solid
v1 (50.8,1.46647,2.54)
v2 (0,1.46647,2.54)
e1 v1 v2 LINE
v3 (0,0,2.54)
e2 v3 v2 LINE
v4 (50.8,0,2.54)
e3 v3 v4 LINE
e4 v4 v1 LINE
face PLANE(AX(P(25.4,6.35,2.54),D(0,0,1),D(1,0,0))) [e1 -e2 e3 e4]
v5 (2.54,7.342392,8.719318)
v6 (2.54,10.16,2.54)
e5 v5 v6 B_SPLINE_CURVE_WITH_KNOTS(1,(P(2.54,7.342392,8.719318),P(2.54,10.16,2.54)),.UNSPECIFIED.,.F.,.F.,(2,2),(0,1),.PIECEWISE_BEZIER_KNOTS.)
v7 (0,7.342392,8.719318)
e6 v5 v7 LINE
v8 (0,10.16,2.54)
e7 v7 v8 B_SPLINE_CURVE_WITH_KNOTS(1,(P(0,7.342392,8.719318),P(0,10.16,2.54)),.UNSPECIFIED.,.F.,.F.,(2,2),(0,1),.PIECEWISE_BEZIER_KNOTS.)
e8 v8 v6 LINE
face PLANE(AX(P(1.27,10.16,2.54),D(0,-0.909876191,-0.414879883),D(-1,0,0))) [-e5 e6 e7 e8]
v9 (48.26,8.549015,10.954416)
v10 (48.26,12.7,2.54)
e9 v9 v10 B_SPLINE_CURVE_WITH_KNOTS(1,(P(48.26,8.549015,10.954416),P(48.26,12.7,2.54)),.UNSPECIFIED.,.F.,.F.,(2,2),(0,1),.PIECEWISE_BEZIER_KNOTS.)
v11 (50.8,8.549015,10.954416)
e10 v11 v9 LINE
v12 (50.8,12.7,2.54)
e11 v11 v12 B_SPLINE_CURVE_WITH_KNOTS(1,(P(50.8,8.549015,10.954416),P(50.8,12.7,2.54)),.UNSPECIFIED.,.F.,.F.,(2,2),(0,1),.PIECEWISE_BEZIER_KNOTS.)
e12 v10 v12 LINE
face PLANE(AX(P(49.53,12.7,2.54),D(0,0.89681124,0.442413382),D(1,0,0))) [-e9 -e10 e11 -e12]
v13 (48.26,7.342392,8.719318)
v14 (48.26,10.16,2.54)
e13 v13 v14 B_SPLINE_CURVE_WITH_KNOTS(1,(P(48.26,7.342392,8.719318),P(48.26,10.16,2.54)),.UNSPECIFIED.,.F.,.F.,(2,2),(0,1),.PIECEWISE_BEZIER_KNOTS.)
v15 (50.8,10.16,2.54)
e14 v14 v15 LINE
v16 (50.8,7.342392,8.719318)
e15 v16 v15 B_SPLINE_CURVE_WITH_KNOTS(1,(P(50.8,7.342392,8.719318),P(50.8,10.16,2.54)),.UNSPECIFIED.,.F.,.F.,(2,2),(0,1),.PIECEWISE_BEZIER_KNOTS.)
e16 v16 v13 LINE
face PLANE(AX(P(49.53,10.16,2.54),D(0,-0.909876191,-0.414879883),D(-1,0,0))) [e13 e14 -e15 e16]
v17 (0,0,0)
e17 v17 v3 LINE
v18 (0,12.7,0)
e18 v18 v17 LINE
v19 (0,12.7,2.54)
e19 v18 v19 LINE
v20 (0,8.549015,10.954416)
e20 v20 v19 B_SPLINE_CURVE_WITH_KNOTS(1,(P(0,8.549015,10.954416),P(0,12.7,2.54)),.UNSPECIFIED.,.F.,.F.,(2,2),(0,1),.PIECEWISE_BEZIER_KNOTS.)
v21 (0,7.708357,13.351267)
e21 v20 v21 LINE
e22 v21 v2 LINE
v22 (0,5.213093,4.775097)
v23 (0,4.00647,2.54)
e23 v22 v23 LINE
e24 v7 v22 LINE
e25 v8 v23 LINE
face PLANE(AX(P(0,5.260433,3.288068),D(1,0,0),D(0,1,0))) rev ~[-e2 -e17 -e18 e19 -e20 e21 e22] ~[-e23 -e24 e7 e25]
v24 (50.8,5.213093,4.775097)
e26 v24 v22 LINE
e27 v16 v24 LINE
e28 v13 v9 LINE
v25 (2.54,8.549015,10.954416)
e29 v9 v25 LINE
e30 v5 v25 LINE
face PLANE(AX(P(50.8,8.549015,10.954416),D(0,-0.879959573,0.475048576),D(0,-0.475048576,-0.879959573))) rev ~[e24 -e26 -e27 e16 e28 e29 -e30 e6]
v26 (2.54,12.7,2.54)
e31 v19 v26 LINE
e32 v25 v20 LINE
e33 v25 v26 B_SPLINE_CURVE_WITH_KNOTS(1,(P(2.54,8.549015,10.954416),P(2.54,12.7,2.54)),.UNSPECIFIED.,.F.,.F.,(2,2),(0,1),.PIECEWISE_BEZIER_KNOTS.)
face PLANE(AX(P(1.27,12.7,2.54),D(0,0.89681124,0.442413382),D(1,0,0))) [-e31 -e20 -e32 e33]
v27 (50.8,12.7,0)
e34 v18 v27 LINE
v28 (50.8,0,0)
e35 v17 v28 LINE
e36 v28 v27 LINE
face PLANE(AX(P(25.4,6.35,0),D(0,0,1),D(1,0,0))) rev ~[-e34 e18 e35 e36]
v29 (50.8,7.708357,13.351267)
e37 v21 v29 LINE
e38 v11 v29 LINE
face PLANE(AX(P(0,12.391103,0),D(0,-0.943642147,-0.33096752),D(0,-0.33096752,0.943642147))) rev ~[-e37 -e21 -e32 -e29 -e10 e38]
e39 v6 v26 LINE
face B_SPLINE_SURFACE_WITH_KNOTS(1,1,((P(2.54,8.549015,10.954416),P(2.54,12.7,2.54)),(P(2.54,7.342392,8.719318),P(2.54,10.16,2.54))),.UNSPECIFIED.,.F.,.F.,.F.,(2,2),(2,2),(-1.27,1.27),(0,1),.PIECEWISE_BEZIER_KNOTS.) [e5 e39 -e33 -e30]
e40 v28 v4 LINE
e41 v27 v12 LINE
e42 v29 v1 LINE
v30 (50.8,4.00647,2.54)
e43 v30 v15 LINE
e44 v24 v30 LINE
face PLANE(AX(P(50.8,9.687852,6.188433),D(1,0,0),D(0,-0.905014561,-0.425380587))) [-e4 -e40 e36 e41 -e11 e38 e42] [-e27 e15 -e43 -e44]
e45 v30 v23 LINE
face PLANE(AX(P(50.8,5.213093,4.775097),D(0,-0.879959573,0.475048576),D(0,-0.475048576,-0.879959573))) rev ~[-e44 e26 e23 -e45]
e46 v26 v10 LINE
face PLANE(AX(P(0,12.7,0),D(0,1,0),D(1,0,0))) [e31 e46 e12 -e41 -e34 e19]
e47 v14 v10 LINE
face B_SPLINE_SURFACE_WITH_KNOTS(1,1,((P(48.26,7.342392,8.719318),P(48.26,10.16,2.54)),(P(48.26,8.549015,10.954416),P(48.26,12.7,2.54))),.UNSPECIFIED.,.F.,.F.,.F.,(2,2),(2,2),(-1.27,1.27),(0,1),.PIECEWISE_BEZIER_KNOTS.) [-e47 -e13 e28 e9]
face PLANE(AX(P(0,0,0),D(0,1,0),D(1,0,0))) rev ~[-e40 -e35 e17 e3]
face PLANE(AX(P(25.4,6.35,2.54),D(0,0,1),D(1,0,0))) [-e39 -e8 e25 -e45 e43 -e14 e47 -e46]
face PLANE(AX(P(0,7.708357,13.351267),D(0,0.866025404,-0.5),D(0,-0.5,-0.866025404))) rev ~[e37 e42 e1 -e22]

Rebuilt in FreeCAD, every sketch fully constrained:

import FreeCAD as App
import Part
import Sketcher
from FreeCAD import Vector
Q = App.Units.Quantity


def add_polygon(sketch, points):
    """Adds a closed chain of lines whose ends are joined by coincident constraints."""
    first, n = sketch.GeometryCount, len(points)
    for a, b in zip(points, points[1:] + points[:1]):
        sketch.addGeometry(Part.LineSegment(App.Vector(*a, 0), App.Vector(*b, 0)), False)
    for i in range(n):
        sketch.addConstraint(Sketcher.Constraint("Coincident", first + i, 2, first + (i + 1) % n, 1))

doc = App.newDocument("Part")
params = doc.addObject("Spreadsheet::Sheet", "Params")
for row, (alias, value) in enumerate([
    ("sketch1_width", "2 in"),
    ("sketch1_height", "0.5 in"),
    ("pad1_length", "0.1 in"),
    ("pad2_length", "2 in"),
    ("pocket1_length", "2 in"),
    ("sketch4_width", "0.1 in"),
    ("sketch4_length", "0.1 in"),
    ("pad3_length", "2 in"),
    ("pad4_length", "1 in"),
    ("sketch6_width", "0.1 in"),
    ("sketch6_length", "0.1 in"),
    ("pocket2_length", "2 in"),
    ("sketch7_width", "0.1 in"),
    ("sketch8_width", "0.1 in"),
    ("sketch9_width", "0.1 in"),
    ("sketch10_width", "0.1 in"),
], start=1):
    params.set(f"A{row}", alias)
    params.set(f"B{row}", "=" + value)
    params.setAlias(f"B{row}", alias)

body = doc.addObject("PartDesign::Body", "Body")

# Sketch on XY plane
sketch1 = body.newObject("Sketcher::SketchObject", "Sketch")
sketch1.AttachmentSupport = (doc.getObject("XY_Plane"), [""])
sketch1.MapMode = "FlatFace"
add_polygon(sketch1, [(0, 13), (0, 0), (51, 0), (51, 13)])  # lines 0-3
sketch1.addConstraint(Sketcher.Constraint("Vertical", 0))
sketch1.addConstraint(Sketcher.Constraint("Horizontal", 1))
sketch1.addConstraint(Sketcher.Constraint("Vertical", 2))
sketch1.addConstraint(Sketcher.Constraint("Horizontal", 3))
sketch1.addConstraint(Sketcher.Constraint("Coincident", 0, 2, -1, 1))
sketch1.addConstraint(Sketcher.Constraint("DistanceX", 1, 1, 1, 2, Q("2 in")))
sketch1.addConstraint(Sketcher.Constraint("DistanceY", 0, 2, 0, 1, Q("0.5 in")))
sketch1.setExpression("Constraints[9]", "Params.sketch1_width")
sketch1.setExpression("Constraints[10]", "Params.sketch1_height")
pad1 = body.newObject("PartDesign::Pad", "Pad")
pad1.Profile = sketch1
pad1.setExpression("Length", "Params.pad1_length")

# Sketch on YZ plane
sketch2 = body.newObject("Sketcher::SketchObject", "Sketch001")
sketch2.AttachmentSupport = (doc.getObject("YZ_Plane"), [""])
sketch2.MapMode = "FlatFace"
add_polygon(sketch2, [(8, 13), (0, 0), (12, 0)])  # lines 0-2
sketch2.addConstraint(Sketcher.Constraint("Horizontal", 1))
sketch2.addConstraint(Sketcher.Constraint("Coincident", 0, 2, -1, 1))
sketch2.addConstraint(Sketcher.Constraint("Angle", 0, Q("-120 deg")))
sketch2.addConstraint(Sketcher.Constraint("DistanceX", 1, 1, 1, 2, 12.391103))
sketch2.addConstraint(Sketcher.Constraint("Distance", 0, 15.416715))
pad2 = body.newObject("PartDesign::Pad", "Pad001")
pad2.Profile = sketch2
pad2.setExpression("Length", "Params.pad2_length")

# Sketch on YZ plane
sketch3 = body.newObject("Sketcher::SketchObject", "Sketch002")
sketch3.AttachmentSupport = (doc.getObject("YZ_Plane"), [""])
sketch3.MapMode = "FlatFace"
sketch3.AttachmentOffset = App.Placement(Vector(0, 0, 2 * 25.4), App.Rotation())
add_polygon(sketch3, [(9, 11), (4, 3), (12, 3)])  # lines 0-2
sketch3.addConstraint(Sketcher.Constraint("Horizontal", 1))
sketch3.addConstraint(Sketcher.Constraint("DistanceY", -1, 1, 0, 2, Q("0.1 in")))
sketch3.addConstraint(Sketcher.Constraint("DistanceX", 1, 1, 1, 2, 7.493768))
sketch3.addConstraint(Sketcher.Constraint("DistanceX", -1, 1, 0, 2, 4.00647))
sketch3.addConstraint(Sketcher.Constraint("Distance", 0, 9.562275))
sketch3.addConstraint(Sketcher.Constraint("Distance", 2, 8.916956))
pocket1 = body.newObject("PartDesign::Pocket", "Pocket")
pocket1.Profile = sketch3
pocket1.setExpression("Length", "Params.pocket1_length")
body2 = doc.addObject("PartDesign::Body", "Body001")

# Sketch on YZ plane
sketch4 = body2.newObject("Sketcher::SketchObject", "Sketch003")
sketch4.AttachmentSupport = (doc.getObject("YZ_Plane001"), [""])
sketch4.MapMode = "FlatFace"
sketch4.AttachmentOffset = App.Placement(Vector(0, 0, 2 * 25.4), App.Rotation())
add_polygon(sketch4, [(5.2, 4.8), (4, 2.5), (6.5, 2.5)])  # lines 0-2
sketch4.addConstraint(Sketcher.Constraint("Horizontal", 1))
sketch4.addConstraint(Sketcher.Constraint("DistanceX", 1, 1, 1, 2, Q("0.1 in")))
sketch4.addConstraint(Sketcher.Constraint("Distance", 0, Q("0.1 in")))
sketch4.addConstraint(Sketcher.Constraint("DistanceY", -1, 1, 0, 2, Q("0.1 in")))
sketch4.addConstraint(Sketcher.Constraint("DistanceX", -1, 1, 0, 2, 4.00647))
sketch4.addConstraint(Sketcher.Constraint("Distance", 2, 2.602605))
sketch4.setExpression("Constraints[4]", "Params.sketch4_width")
sketch4.setExpression("Constraints[5]", "Params.sketch4_length")
pad3 = body2.newObject("PartDesign::Pad", "Pad002")
pad3.Profile = sketch4
pad3.setExpression("Length", "Params.pad3_length")
pad3.Reversed = True
doc.recompute()

boolean = body.newObject("PartDesign::Boolean", "Boolean")
boolean.Type = "Fuse"
boolean.addObjects([body2])

# Sketch on YZ plane
sketch5 = body.newObject("Sketcher::SketchObject", "Sketch004")
sketch5.AttachmentSupport = (doc.getObject("YZ_Plane"), [""])
sketch5.MapMode = "FlatFace"
sketch5.AttachmentOffset = App.Placement(Vector(0, 0, 2 * 25.4), App.Rotation())
sketch5.addGeometry(Part.Circle(Vector(4, 2.5, 0), Vector(0, 0, 1), 0.8), False)
sketch5.addConstraint(Sketcher.Constraint("DistanceY", -1, 1, 0, 3, Q("0.1 in")))
sketch5.addConstraint(Sketcher.Constraint("Diameter", 0, 1.558504))
sketch5.addConstraint(Sketcher.Constraint("DistanceX", -1, 1, 0, 3, 4.00647))
pad4 = body.newObject("PartDesign::Pad", "Pad003")
pad4.Profile = sketch5
pad4.setExpression("Length", "Params.pad4_length")
pad4.Reversed = True

# Sketch on YZ plane
sketch6 = body.newObject("Sketcher::SketchObject", "Sketch005")
sketch6.AttachmentSupport = (doc.getObject("YZ_Plane"), [""])
sketch6.MapMode = "FlatFace"
sketch6.AttachmentOffset = App.Placement(Vector(0, 0, 2 * 25.4), App.Rotation())
add_polygon(sketch6, [(4, 2.5), (6.5, 2.5), (5.2, 4.8)])  # lines 0-2
sketch6.addConstraint(Sketcher.Constraint("Horizontal", 0))
sketch6.addConstraint(Sketcher.Constraint("DistanceX", 0, 1, 0, 2, Q("0.1 in")))
sketch6.addConstraint(Sketcher.Constraint("Distance", 2, Q("0.1 in")))
sketch6.addConstraint(Sketcher.Constraint("DistanceY", -1, 1, 0, 2, Q("0.1 in")))
sketch6.addConstraint(Sketcher.Constraint("DistanceX", -1, 1, 0, 2, 6.54647))
sketch6.addConstraint(Sketcher.Constraint("Distance", 1, 2.602605))
sketch6.setExpression("Constraints[4]", "Params.sketch6_width")
sketch6.setExpression("Constraints[5]", "Params.sketch6_length")
pocket2 = body.newObject("PartDesign::Pocket", "Pocket001")
pocket2.Profile = sketch6
pocket2.setExpression("Length", "Params.pocket2_length")

# Sketch on an angled plane
sketch7 = body.newObject("Sketcher::SketchObject", "Sketch006")
sketch7.Placement = App.Placement(Vector(0, 2.040545, -1.101594), App.Rotation(Vector(-1, 0, 0), Vector(0, 0.475048576, 0.879959573), Vector(0, 0.879959573, -0.475048576), "ZXY"))
add_polygon(sketch7, [(-50.8, 13.7), (-50.8, 11.2), (-48.3, 11.2), (-48.3, 13.7)])  # lines 0-3
sketch7.addConstraint(Sketcher.Constraint("Vertical", 0))
sketch7.addConstraint(Sketcher.Constraint("Horizontal", 1))
sketch7.addConstraint(Sketcher.Constraint("Vertical", 2))
sketch7.addConstraint(Sketcher.Constraint("Horizontal", 3))
sketch7.addConstraint(Sketcher.Constraint("Equal", 3, 0))
sketch7.addConstraint(Sketcher.Constraint("DistanceX", 1, 1, 1, 2, Q("0.1 in")))
sketch7.addConstraint(Sketcher.Constraint("DistanceX", 0, 2, -1, 1, Q("2 in")))
sketch7.addConstraint(Sketcher.Constraint("DistanceY", -1, 1, 0, 2, 11.16064))
sketch7.setExpression("Constraints[9]", "Params.sketch7_width")

# Sketch on XY plane
sketch8 = body.newObject("Sketcher::SketchObject", "Sketch007")
sketch8.AttachmentSupport = (doc.getObject("XY_Plane"), [""])
sketch8.MapMode = "FlatFace"
sketch8.AttachmentOffset = App.Placement(Vector(0, 0, 0.1 * 25.4), App.Rotation())
add_polygon(sketch8, [(48.3, 12.7), (48.3, 10.2), (50.8, 10.2), (50.8, 12.7)])  # lines 0-3
sketch8.addConstraint(Sketcher.Constraint("Vertical", 0))
sketch8.addConstraint(Sketcher.Constraint("Horizontal", 1))
sketch8.addConstraint(Sketcher.Constraint("Vertical", 2))
sketch8.addConstraint(Sketcher.Constraint("Horizontal", 3))
sketch8.addConstraint(Sketcher.Constraint("Equal", 3, 0))
sketch8.addConstraint(Sketcher.Constraint("DistanceX", 1, 1, 1, 2, Q("0.1 in")))
sketch8.addConstraint(Sketcher.Constraint("DistanceX", -1, 1, 1, 2, Q("2 in")))
sketch8.addConstraint(Sketcher.Constraint("DistanceY", -1, 1, 0, 2, Q("0.4 in")))
sketch8.setExpression("Constraints[9]", "Params.sketch8_width")

additiveloft = body.newObject("PartDesign::AdditiveLoft", "AdditiveLoft")
additiveloft.Profile = sketch7
additiveloft.Sections = [sketch8]

# Sketch on an angled plane
sketch9 = body.newObject("Sketcher::SketchObject", "Sketch008")
sketch9.Placement = App.Placement(Vector(0, 2.040545, -1.101594), App.Rotation(Vector(-1, 0, 0), Vector(0, 0.475048576, 0.879959573), Vector(0, 0.879959573, -0.475048576), "ZXY"))
add_polygon(sketch9, [(-2.5, 13.7), (-2.5, 11.2), (0, 11.2), (0, 13.7)])  # lines 0-3
sketch9.addConstraint(Sketcher.Constraint("Vertical", 0))
sketch9.addConstraint(Sketcher.Constraint("Horizontal", 1))
sketch9.addConstraint(Sketcher.Constraint("Vertical", 2))
sketch9.addConstraint(Sketcher.Constraint("Horizontal", 3))
sketch9.addConstraint(Sketcher.Constraint("PointOnObject", 1, 2, -2))
sketch9.addConstraint(Sketcher.Constraint("Equal", 3, 0))
sketch9.addConstraint(Sketcher.Constraint("DistanceX", 1, 1, 1, 2, Q("0.1 in")))
sketch9.addConstraint(Sketcher.Constraint("DistanceY", -1, 1, 0, 2, 11.16064))
sketch9.setExpression("Constraints[10]", "Params.sketch9_width")

# Sketch on XY plane
sketch10 = body.newObject("Sketcher::SketchObject", "Sketch009")
sketch10.AttachmentSupport = (doc.getObject("XY_Plane"), [""])
sketch10.MapMode = "FlatFace"
sketch10.AttachmentOffset = App.Placement(Vector(0, 0, 0.1 * 25.4), App.Rotation())
add_polygon(sketch10, [(0, 12.7), (0, 10.2), (2.5, 10.2), (2.5, 12.7)])  # lines 0-3
sketch10.addConstraint(Sketcher.Constraint("Vertical", 0))
sketch10.addConstraint(Sketcher.Constraint("Horizontal", 1))
sketch10.addConstraint(Sketcher.Constraint("Vertical", 2))
sketch10.addConstraint(Sketcher.Constraint("Horizontal", 3))
sketch10.addConstraint(Sketcher.Constraint("PointOnObject", 0, 2, -2))
sketch10.addConstraint(Sketcher.Constraint("Equal", 3, 0))
sketch10.addConstraint(Sketcher.Constraint("DistanceX", 1, 1, 1, 2, Q("0.1 in")))
sketch10.addConstraint(Sketcher.Constraint("DistanceY", -1, 1, 0, 2, Q("0.4 in")))
sketch10.setExpression("Constraints[10]", "Params.sketch10_width")

additiveloft2 = body.newObject("PartDesign::AdditiveLoft", "AdditiveLoft001")
additiveloft2.Profile = sketch9
additiveloft2.Sections = [sketch10]

doc.recompute()
